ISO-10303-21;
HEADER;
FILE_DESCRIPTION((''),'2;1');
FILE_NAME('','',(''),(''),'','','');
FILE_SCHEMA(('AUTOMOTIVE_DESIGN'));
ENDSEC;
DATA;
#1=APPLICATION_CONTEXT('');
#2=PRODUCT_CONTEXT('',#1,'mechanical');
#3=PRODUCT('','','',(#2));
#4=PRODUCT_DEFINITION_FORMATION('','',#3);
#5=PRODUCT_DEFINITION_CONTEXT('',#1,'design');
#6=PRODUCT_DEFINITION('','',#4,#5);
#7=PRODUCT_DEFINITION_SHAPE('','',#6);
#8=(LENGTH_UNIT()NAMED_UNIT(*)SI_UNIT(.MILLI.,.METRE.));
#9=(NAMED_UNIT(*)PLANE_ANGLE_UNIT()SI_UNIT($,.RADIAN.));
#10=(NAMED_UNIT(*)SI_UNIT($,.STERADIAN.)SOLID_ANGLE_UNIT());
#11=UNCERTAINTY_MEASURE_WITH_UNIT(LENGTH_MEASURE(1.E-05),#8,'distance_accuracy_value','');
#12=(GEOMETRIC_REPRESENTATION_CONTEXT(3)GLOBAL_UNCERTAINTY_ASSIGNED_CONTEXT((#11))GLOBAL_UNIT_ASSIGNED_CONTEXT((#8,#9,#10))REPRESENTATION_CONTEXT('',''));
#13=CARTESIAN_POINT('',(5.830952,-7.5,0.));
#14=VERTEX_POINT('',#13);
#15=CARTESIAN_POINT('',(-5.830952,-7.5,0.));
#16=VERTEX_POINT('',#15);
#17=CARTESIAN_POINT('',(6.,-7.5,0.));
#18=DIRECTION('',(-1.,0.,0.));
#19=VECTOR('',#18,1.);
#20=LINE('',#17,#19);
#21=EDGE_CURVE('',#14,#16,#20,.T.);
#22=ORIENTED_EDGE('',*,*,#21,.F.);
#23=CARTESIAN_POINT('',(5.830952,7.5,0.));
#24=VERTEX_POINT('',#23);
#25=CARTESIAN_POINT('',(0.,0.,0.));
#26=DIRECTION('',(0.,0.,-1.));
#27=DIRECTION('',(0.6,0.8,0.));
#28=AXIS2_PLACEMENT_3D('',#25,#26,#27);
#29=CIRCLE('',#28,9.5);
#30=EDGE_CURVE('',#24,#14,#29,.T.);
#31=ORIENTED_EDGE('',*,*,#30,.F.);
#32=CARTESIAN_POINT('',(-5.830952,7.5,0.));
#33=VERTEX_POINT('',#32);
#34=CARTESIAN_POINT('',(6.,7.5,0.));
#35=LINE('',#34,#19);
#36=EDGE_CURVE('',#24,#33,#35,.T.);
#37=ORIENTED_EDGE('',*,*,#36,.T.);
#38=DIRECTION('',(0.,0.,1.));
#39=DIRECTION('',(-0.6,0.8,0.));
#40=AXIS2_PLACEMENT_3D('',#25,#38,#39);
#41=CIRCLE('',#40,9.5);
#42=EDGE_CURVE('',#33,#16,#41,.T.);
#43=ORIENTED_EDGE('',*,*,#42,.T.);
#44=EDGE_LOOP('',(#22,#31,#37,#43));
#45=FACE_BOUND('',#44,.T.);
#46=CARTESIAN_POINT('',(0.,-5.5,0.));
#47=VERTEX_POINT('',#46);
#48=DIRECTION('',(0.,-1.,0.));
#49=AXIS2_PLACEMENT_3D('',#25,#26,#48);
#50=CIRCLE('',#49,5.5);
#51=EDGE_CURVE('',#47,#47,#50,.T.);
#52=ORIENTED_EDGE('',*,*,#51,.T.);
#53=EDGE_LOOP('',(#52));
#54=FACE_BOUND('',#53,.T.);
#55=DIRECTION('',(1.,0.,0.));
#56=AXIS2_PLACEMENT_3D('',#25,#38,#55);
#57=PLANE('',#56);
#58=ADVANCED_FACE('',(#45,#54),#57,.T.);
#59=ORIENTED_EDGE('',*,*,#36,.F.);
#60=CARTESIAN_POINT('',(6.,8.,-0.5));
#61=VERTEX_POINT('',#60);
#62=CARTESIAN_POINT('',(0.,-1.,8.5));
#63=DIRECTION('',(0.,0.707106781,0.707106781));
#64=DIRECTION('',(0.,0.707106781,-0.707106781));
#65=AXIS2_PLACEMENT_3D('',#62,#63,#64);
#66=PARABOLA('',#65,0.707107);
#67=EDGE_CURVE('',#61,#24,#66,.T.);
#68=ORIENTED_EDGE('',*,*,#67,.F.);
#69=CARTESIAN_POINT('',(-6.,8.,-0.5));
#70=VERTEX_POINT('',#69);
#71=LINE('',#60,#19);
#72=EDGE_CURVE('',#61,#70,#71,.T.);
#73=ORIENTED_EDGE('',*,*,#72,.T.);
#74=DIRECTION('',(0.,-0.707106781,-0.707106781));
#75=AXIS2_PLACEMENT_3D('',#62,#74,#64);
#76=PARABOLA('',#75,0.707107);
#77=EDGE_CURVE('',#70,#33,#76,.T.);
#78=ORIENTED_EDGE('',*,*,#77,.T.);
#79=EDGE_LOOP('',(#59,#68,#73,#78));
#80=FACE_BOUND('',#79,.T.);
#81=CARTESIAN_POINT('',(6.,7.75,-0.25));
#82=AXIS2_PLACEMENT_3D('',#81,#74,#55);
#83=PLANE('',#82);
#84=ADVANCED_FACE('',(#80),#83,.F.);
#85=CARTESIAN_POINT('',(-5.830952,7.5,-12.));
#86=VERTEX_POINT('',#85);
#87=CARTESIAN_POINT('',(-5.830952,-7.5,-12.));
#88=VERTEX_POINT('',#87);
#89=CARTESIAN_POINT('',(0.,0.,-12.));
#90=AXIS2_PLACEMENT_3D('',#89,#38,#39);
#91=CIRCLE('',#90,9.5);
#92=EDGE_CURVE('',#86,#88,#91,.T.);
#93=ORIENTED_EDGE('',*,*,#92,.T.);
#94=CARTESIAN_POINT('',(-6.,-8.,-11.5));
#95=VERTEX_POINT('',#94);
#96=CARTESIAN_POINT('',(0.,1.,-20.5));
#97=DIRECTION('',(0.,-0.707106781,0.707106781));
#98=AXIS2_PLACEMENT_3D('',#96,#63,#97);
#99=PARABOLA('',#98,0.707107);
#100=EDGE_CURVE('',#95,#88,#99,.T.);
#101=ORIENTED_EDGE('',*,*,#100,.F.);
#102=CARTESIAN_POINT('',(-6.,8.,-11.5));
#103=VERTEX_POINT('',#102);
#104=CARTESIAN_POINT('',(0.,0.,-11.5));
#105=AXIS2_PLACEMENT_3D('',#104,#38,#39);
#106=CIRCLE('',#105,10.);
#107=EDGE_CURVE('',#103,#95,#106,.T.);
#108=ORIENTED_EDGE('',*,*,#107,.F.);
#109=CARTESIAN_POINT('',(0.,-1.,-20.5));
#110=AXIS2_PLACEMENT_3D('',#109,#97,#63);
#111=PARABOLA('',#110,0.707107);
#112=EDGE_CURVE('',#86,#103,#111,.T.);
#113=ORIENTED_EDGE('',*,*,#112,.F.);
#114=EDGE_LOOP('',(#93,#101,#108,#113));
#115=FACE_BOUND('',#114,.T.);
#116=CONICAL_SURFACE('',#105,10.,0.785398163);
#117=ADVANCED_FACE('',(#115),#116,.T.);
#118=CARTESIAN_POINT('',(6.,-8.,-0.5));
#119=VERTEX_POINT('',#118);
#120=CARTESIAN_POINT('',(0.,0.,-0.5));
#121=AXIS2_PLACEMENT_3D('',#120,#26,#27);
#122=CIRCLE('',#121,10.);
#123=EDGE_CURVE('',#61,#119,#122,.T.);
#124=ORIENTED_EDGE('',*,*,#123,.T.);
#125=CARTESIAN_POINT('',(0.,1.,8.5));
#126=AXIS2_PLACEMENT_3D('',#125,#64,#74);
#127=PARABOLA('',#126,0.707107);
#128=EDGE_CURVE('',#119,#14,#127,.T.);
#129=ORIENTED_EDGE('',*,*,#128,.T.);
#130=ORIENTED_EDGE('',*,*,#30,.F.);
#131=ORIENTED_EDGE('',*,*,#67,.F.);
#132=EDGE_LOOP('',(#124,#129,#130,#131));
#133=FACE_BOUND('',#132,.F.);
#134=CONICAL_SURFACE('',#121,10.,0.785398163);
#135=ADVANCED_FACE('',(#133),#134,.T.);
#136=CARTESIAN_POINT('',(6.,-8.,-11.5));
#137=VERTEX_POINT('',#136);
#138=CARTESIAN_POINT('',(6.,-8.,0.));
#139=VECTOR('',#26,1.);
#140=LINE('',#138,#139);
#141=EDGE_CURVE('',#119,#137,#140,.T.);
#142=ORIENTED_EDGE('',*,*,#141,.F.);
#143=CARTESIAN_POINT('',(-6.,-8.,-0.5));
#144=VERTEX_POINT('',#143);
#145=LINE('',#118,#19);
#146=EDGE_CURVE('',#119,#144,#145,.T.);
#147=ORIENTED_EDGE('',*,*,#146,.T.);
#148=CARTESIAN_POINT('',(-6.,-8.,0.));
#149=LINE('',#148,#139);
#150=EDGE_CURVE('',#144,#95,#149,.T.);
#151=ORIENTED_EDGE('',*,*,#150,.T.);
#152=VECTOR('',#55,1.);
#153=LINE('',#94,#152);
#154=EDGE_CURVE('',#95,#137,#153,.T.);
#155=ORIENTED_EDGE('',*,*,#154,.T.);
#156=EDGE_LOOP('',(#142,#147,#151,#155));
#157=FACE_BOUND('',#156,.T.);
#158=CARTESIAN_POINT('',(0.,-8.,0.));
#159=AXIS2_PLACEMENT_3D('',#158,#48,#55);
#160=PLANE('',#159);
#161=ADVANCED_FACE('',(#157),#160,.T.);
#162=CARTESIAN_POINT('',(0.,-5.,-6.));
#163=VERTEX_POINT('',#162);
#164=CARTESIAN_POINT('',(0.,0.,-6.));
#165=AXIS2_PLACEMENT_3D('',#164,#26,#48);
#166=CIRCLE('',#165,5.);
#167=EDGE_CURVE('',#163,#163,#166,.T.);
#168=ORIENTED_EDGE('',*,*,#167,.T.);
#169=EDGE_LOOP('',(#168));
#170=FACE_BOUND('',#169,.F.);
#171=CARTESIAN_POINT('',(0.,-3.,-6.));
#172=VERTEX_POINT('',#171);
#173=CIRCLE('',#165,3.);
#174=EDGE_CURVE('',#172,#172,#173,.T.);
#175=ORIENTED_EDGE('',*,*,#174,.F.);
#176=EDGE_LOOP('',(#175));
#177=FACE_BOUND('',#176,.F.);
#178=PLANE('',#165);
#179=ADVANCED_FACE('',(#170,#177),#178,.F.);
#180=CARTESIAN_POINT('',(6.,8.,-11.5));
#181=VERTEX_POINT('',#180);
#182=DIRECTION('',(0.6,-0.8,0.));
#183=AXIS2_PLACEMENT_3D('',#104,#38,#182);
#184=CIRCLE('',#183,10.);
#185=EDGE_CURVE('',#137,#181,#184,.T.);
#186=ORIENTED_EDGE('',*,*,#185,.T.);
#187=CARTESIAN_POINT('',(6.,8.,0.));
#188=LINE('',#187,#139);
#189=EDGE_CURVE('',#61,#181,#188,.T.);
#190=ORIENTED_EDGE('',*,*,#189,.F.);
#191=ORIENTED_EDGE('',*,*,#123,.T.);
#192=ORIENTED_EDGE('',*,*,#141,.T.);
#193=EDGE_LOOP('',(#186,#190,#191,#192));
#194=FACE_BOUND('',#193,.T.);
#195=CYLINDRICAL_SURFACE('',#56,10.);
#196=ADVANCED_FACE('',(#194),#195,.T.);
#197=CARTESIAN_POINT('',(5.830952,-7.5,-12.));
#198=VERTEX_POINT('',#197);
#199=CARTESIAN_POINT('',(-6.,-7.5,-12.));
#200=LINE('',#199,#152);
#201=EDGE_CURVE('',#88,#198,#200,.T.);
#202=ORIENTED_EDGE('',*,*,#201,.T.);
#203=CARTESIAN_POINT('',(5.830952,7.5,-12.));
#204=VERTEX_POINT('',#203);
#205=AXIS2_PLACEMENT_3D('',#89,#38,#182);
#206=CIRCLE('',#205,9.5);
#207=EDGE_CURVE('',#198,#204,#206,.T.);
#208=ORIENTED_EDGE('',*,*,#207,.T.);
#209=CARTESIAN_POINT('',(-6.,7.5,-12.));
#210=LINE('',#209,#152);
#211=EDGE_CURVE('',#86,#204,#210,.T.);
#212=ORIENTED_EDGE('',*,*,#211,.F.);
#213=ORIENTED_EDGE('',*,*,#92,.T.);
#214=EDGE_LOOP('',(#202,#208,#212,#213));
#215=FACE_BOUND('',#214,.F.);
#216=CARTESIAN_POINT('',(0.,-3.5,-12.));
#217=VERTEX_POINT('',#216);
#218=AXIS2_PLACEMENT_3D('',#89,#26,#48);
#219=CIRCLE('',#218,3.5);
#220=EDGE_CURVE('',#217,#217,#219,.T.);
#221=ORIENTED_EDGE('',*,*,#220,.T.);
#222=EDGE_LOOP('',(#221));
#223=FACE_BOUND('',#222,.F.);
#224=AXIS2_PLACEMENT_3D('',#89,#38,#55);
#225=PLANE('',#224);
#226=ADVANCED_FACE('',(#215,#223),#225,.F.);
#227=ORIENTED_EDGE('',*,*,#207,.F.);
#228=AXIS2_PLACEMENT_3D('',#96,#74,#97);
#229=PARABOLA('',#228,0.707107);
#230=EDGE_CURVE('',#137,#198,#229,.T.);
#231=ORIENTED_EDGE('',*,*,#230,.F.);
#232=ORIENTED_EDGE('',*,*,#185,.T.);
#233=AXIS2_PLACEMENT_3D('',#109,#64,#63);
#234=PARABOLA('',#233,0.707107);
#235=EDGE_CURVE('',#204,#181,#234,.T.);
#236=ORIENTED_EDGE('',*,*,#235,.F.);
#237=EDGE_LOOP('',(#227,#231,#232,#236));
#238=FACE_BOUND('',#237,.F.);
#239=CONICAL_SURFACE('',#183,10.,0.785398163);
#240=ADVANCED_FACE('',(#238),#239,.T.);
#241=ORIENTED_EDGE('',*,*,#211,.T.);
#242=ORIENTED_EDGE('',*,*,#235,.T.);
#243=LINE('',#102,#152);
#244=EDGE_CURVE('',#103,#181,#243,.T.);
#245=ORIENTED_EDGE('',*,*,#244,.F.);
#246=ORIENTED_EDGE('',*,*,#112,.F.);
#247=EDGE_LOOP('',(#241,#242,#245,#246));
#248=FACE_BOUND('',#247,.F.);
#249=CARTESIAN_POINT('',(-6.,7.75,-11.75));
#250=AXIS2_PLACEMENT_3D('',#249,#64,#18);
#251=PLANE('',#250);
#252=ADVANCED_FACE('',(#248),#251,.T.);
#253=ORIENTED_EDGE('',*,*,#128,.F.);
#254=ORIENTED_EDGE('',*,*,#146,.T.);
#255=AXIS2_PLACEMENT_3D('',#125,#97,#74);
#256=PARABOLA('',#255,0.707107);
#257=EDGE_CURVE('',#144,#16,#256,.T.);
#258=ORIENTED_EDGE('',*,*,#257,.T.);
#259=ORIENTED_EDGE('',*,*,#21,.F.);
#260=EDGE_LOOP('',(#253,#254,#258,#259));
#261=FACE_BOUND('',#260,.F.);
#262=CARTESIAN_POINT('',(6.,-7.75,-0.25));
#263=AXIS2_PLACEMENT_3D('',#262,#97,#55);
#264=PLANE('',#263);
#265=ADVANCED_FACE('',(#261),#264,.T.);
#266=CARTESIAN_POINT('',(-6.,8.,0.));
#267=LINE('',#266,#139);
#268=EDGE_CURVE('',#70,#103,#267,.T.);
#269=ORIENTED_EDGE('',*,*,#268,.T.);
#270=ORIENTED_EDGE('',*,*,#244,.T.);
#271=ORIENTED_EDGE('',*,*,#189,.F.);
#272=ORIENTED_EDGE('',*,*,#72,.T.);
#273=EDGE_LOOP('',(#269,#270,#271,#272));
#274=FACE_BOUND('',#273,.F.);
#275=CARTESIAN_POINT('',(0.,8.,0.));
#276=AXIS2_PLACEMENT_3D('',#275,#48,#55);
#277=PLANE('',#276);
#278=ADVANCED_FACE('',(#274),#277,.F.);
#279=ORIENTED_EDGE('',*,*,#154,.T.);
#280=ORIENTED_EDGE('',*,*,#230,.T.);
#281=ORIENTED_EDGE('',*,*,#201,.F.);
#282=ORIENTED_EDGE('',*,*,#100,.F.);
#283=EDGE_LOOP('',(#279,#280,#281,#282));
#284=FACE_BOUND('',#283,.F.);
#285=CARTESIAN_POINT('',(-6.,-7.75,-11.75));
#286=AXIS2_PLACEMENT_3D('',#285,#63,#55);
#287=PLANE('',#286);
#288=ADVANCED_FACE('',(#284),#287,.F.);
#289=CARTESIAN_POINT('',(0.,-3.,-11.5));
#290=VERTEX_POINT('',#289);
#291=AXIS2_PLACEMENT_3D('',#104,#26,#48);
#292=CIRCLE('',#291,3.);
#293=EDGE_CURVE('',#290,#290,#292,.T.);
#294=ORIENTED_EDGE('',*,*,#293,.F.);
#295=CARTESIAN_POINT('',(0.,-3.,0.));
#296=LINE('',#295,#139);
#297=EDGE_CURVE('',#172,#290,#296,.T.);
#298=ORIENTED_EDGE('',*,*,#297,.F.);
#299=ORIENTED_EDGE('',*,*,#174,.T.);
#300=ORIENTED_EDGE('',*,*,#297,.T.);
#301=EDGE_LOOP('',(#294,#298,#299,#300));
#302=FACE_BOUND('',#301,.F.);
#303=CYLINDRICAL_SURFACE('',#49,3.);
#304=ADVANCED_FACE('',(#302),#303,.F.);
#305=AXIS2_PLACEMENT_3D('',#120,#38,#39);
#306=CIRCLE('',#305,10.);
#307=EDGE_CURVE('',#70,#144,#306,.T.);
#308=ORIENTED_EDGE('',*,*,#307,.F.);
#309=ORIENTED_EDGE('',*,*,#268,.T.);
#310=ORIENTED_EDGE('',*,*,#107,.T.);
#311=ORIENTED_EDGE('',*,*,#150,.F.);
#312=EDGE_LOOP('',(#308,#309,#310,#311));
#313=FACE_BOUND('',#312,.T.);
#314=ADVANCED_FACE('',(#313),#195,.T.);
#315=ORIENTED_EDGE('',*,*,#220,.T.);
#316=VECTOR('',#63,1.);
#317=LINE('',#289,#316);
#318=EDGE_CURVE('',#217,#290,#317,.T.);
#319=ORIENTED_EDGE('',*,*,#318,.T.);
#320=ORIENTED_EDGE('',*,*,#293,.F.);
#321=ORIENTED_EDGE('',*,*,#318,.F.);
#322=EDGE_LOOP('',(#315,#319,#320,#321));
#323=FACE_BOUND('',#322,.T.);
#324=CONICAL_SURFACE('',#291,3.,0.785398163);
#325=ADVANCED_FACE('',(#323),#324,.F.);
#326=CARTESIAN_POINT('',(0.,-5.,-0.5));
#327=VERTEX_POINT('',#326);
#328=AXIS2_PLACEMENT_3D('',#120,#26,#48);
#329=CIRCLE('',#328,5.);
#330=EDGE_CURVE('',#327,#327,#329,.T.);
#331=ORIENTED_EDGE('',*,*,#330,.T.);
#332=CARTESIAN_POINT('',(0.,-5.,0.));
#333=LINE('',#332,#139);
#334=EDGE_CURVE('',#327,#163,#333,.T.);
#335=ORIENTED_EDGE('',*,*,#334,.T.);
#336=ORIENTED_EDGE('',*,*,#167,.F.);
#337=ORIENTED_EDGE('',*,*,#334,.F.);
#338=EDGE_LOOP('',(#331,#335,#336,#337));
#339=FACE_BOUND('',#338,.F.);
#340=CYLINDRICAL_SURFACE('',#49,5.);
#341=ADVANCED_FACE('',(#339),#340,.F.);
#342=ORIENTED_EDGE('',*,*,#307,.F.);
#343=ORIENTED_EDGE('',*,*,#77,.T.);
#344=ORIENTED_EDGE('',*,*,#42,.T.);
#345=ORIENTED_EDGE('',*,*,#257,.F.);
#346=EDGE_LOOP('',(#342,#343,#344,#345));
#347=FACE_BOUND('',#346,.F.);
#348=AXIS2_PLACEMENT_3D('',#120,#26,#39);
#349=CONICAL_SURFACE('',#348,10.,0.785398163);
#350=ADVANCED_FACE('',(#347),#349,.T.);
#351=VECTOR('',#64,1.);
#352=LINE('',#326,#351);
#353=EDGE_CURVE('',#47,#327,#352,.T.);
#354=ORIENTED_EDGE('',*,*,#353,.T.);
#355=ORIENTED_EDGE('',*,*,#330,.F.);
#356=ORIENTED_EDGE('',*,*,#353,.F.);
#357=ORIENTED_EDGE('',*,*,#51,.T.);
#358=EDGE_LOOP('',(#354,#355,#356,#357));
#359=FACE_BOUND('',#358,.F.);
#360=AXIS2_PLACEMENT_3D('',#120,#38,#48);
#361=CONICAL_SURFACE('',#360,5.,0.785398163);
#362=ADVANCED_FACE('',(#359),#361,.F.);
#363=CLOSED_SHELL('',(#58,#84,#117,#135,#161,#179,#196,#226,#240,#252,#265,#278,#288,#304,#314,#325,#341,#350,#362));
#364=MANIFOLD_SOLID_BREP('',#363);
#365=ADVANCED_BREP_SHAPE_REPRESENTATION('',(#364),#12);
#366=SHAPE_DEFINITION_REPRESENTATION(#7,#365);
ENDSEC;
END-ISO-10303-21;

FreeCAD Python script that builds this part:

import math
import FreeCAD as App
import Part
import Sketcher
from FreeCAD import Vector


def edges_at(feature, points):
    """Names of the edges that pass closest to the given points."""
    edges = feature.Shape.Edges
    near = lambda p: min(range(len(edges)), key=lambda i: edges[i].distToShape(Part.Vertex(*p))[0])
    return sorted({f"Edge{near(p) + 1}" for p in points})

doc = App.newDocument("Part")
body = doc.addObject("PartDesign::Body", "Body")

# Sketch on XY plane
sketch1 = doc.addObject("Sketcher::SketchObject", "Sketch")
body.addObject(sketch1)
sketch1.AttachmentSupport = (doc.XY_Plane, [""])
sketch1.MapMode = "FlatFace"
sketch1.addGeometry([
    Part.ArcOfCircle(Part.Circle(Vector(0, 0, 0), Vector(0, 0, 1), 10), math.radians(-53), math.radians(53)),
    Part.LineSegment(Vector(6, 8, 0), Vector(-6, 8, 0)),
    Part.ArcOfCircle(Part.Circle(Vector(0, 0, 0), Vector(0, 0, 1), 10), math.radians(127), math.radians(233)),
    Part.LineSegment(Vector(-6, -8, 0), Vector(6, -8, 0)),
], False)
sketch1.addConstraint([
    Sketcher.Constraint("Coincident", 0, 2, 1, 1),
    Sketcher.Constraint("Coincident", 1, 2, 2, 1),
    Sketcher.Constraint("Coincident", 2, 2, 3, 1),
    Sketcher.Constraint("Coincident", 3, 2, 0, 1),
    Sketcher.Constraint("Horizontal", 1),
    Sketcher.Constraint("Horizontal", 3),
    Sketcher.Constraint("Coincident", 0, 3, -1, 1),
    Sketcher.Constraint("Coincident", 2, 3, -1, 1),
    Sketcher.Constraint("Equal", 0, 2),
    Sketcher.Constraint("Vertical", 1, 2, 2, 2),
    Sketcher.Constraint("Radius", 0, 10.0),
    Sketcher.Constraint("DistanceX", 1, 2, 1, 1, 12.0),
])
pad1 = doc.addObject("PartDesign::Pad", "Pad")
body.addObject(pad1)
pad1.Profile = sketch1
pad1.Length = 12
pad1.Reversed = True

# Sketch on XY plane
sketch2 = doc.addObject("Sketcher::SketchObject", "Sketch001")
body.addObject(sketch2)
sketch2.AttachmentSupport = (doc.XY_Plane, [""])
sketch2.MapMode = "FlatFace"
sketch2.addGeometry(Part.Circle(Vector(0, 0, 0), Vector(0, 0, 1), 5), False)
sketch2.addConstraint([
    Sketcher.Constraint("Coincident", 0, 3, -1, 1),
    Sketcher.Constraint("Diameter", 0, 10.0),
])
doc.recompute()
hole = doc.addObject("PartDesign::Hole", "Hole")
body.addObject(hole)
hole.Profile = sketch2
hole.ThreadType = "None"
hole.Diameter = 10
hole.DepthType = "Dimension"
hole.Depth = 6
hole.DrillPoint = "Flat"

# Sketch on XY plane
sketch3 = doc.addObject("Sketcher::SketchObject", "Sketch002")
body.addObject(sketch3)
sketch3.AttachmentSupport = (doc.XY_Plane, [""])
sketch3.MapMode = "FlatFace"
sketch3.addGeometry(Part.Circle(Vector(0, 0, 0), Vector(0, 0, 1), 3), False)
sketch3.addConstraint([
    Sketcher.Constraint("Coincident", 0, 3, -1, 1),
    Sketcher.Constraint("Diameter", 0, 6.0),
])
doc.recompute()
hole2 = doc.addObject("PartDesign::Hole", "Hole001")
body.addObject(hole2)
hole2.Profile = sketch3
hole2.ThreadType = "None"
hole2.Diameter = 6
hole2.DepthType = "ThroughAll"
doc.recompute()

chamfer = doc.addObject("PartDesign::Chamfer", "Chamfer")
body.addObject(chamfer)
chamfer.Base = (hole2, edges_at(hole2, [
    (0, 8, 0),
    (0, -8, 0),
    (10, 0, 0),
    (-10, 0, 0),
    (0, -8, -12),
    (0, 8, -12),
    (10, 0, -12),
    (-10, 0, -12),
]))
chamfer.Size = 0.5
doc.recompute()

chamfer2 = doc.addObject("PartDesign::Chamfer", "Chamfer001")
body.addObject(chamfer2)
chamfer2.Base = (chamfer, edges_at(chamfer, [(0, 5, 0), (0, 3, -12)]))
chamfer2.Size = 0.5

doc.recompute()
